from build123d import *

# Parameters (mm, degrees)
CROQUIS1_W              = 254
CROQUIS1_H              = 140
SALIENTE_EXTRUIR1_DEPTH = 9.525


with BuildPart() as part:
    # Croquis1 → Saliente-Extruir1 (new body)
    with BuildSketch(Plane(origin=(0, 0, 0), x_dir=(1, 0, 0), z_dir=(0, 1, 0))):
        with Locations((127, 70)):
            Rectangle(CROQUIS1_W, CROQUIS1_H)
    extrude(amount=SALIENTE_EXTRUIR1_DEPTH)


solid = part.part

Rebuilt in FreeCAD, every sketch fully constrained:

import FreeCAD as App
import Part
import Sketcher
from FreeCAD import Vector
Q = App.Units.Quantity

doc = App.newDocument("Part")
body = doc.addObject("PartDesign::Body", "Body")

sketch1 = body.newObject("Sketcher::SketchObject", "Sketch")
sketch1.AttachmentSupport = (doc.getObject("XZ_Plane"), [""])
sketch1.MapMode = "FlatFace"
sketch1.addGeometry(Part.LineSegment(Vector(0, -140, 0), Vector(0, 0, 0)), False)
sketch1.addGeometry(Part.LineSegment(Vector(0, 0, 0), Vector(254, 0, 0)), False)
sketch1.addGeometry(Part.LineSegment(Vector(254, 0, 0), Vector(254, -140, 0)), False)
sketch1.addGeometry(Part.LineSegment(Vector(254, -140, 0), Vector(0, -140, 0)), False)
sketch1.addConstraint(Sketcher.Constraint("Coincident", 0, 2, 1, 1))
sketch1.addConstraint(Sketcher.Constraint("Coincident", 1, 2, 2, 1))
sketch1.addConstraint(Sketcher.Constraint("Coincident", 2, 2, 3, 1))
sketch1.addConstraint(Sketcher.Constraint("Coincident", 3, 2, 0, 1))
sketch1.addConstraint(Sketcher.Constraint("Vertical", 0))
sketch1.addConstraint(Sketcher.Constraint("Horizontal", 1))
sketch1.addConstraint(Sketcher.Constraint("Vertical", 2))
sketch1.addConstraint(Sketcher.Constraint("Horizontal", 3))
sketch1.addConstraint(Sketcher.Constraint("Coincident", 0, 2, -1, 1))
sketch1.addConstraint(Sketcher.Constraint("DistanceX", 1, 1, 1, 2, Q("10 in")))
sketch1.addConstraint(Sketcher.Constraint("DistanceY", 0, 1, 0, 2, Q("140 mm")))
pad1 = body.newObject("PartDesign::Pad", "Pad")
pad1.Profile = sketch1
pad1.Length = Q("0.375 in")
pad1.Reversed = True

doc.recompute()
